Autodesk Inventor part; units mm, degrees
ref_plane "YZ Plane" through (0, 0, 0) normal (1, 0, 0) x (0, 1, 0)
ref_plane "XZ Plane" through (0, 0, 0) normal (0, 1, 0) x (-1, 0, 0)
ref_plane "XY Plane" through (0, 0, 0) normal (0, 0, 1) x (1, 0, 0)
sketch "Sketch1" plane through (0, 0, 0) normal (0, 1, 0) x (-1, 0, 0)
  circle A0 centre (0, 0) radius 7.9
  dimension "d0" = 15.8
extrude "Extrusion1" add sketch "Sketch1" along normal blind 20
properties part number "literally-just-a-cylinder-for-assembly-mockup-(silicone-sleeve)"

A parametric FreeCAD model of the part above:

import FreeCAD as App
import Part
import Sketcher
from FreeCAD import Vector

doc = App.newDocument("Part")
body = doc.addObject("PartDesign::Body", "Body")

# Sketch on XZ plane
sketch1 = body.newObject("Sketcher::SketchObject", "Sketch")
sketch1.AttachmentSupport = (doc.getObject("XZ_Plane"), [""])
sketch1.MapMode = "FlatFace"
sketch1.addGeometry(Part.Circle(Vector(0, 0, 0), Vector(0, 0, 1), 8), False)
sketch1.addConstraint(Sketcher.Constraint("Coincident", 0, 3, -1, 1))
sketch1.addConstraint(Sketcher.Constraint("Diameter", 0, 15.8))
pad1 = body.newObject("PartDesign::Pad", "Pad")
pad1.Profile = sketch1
pad1.Length = 20
pad1.Reversed = True

doc.recompute()
